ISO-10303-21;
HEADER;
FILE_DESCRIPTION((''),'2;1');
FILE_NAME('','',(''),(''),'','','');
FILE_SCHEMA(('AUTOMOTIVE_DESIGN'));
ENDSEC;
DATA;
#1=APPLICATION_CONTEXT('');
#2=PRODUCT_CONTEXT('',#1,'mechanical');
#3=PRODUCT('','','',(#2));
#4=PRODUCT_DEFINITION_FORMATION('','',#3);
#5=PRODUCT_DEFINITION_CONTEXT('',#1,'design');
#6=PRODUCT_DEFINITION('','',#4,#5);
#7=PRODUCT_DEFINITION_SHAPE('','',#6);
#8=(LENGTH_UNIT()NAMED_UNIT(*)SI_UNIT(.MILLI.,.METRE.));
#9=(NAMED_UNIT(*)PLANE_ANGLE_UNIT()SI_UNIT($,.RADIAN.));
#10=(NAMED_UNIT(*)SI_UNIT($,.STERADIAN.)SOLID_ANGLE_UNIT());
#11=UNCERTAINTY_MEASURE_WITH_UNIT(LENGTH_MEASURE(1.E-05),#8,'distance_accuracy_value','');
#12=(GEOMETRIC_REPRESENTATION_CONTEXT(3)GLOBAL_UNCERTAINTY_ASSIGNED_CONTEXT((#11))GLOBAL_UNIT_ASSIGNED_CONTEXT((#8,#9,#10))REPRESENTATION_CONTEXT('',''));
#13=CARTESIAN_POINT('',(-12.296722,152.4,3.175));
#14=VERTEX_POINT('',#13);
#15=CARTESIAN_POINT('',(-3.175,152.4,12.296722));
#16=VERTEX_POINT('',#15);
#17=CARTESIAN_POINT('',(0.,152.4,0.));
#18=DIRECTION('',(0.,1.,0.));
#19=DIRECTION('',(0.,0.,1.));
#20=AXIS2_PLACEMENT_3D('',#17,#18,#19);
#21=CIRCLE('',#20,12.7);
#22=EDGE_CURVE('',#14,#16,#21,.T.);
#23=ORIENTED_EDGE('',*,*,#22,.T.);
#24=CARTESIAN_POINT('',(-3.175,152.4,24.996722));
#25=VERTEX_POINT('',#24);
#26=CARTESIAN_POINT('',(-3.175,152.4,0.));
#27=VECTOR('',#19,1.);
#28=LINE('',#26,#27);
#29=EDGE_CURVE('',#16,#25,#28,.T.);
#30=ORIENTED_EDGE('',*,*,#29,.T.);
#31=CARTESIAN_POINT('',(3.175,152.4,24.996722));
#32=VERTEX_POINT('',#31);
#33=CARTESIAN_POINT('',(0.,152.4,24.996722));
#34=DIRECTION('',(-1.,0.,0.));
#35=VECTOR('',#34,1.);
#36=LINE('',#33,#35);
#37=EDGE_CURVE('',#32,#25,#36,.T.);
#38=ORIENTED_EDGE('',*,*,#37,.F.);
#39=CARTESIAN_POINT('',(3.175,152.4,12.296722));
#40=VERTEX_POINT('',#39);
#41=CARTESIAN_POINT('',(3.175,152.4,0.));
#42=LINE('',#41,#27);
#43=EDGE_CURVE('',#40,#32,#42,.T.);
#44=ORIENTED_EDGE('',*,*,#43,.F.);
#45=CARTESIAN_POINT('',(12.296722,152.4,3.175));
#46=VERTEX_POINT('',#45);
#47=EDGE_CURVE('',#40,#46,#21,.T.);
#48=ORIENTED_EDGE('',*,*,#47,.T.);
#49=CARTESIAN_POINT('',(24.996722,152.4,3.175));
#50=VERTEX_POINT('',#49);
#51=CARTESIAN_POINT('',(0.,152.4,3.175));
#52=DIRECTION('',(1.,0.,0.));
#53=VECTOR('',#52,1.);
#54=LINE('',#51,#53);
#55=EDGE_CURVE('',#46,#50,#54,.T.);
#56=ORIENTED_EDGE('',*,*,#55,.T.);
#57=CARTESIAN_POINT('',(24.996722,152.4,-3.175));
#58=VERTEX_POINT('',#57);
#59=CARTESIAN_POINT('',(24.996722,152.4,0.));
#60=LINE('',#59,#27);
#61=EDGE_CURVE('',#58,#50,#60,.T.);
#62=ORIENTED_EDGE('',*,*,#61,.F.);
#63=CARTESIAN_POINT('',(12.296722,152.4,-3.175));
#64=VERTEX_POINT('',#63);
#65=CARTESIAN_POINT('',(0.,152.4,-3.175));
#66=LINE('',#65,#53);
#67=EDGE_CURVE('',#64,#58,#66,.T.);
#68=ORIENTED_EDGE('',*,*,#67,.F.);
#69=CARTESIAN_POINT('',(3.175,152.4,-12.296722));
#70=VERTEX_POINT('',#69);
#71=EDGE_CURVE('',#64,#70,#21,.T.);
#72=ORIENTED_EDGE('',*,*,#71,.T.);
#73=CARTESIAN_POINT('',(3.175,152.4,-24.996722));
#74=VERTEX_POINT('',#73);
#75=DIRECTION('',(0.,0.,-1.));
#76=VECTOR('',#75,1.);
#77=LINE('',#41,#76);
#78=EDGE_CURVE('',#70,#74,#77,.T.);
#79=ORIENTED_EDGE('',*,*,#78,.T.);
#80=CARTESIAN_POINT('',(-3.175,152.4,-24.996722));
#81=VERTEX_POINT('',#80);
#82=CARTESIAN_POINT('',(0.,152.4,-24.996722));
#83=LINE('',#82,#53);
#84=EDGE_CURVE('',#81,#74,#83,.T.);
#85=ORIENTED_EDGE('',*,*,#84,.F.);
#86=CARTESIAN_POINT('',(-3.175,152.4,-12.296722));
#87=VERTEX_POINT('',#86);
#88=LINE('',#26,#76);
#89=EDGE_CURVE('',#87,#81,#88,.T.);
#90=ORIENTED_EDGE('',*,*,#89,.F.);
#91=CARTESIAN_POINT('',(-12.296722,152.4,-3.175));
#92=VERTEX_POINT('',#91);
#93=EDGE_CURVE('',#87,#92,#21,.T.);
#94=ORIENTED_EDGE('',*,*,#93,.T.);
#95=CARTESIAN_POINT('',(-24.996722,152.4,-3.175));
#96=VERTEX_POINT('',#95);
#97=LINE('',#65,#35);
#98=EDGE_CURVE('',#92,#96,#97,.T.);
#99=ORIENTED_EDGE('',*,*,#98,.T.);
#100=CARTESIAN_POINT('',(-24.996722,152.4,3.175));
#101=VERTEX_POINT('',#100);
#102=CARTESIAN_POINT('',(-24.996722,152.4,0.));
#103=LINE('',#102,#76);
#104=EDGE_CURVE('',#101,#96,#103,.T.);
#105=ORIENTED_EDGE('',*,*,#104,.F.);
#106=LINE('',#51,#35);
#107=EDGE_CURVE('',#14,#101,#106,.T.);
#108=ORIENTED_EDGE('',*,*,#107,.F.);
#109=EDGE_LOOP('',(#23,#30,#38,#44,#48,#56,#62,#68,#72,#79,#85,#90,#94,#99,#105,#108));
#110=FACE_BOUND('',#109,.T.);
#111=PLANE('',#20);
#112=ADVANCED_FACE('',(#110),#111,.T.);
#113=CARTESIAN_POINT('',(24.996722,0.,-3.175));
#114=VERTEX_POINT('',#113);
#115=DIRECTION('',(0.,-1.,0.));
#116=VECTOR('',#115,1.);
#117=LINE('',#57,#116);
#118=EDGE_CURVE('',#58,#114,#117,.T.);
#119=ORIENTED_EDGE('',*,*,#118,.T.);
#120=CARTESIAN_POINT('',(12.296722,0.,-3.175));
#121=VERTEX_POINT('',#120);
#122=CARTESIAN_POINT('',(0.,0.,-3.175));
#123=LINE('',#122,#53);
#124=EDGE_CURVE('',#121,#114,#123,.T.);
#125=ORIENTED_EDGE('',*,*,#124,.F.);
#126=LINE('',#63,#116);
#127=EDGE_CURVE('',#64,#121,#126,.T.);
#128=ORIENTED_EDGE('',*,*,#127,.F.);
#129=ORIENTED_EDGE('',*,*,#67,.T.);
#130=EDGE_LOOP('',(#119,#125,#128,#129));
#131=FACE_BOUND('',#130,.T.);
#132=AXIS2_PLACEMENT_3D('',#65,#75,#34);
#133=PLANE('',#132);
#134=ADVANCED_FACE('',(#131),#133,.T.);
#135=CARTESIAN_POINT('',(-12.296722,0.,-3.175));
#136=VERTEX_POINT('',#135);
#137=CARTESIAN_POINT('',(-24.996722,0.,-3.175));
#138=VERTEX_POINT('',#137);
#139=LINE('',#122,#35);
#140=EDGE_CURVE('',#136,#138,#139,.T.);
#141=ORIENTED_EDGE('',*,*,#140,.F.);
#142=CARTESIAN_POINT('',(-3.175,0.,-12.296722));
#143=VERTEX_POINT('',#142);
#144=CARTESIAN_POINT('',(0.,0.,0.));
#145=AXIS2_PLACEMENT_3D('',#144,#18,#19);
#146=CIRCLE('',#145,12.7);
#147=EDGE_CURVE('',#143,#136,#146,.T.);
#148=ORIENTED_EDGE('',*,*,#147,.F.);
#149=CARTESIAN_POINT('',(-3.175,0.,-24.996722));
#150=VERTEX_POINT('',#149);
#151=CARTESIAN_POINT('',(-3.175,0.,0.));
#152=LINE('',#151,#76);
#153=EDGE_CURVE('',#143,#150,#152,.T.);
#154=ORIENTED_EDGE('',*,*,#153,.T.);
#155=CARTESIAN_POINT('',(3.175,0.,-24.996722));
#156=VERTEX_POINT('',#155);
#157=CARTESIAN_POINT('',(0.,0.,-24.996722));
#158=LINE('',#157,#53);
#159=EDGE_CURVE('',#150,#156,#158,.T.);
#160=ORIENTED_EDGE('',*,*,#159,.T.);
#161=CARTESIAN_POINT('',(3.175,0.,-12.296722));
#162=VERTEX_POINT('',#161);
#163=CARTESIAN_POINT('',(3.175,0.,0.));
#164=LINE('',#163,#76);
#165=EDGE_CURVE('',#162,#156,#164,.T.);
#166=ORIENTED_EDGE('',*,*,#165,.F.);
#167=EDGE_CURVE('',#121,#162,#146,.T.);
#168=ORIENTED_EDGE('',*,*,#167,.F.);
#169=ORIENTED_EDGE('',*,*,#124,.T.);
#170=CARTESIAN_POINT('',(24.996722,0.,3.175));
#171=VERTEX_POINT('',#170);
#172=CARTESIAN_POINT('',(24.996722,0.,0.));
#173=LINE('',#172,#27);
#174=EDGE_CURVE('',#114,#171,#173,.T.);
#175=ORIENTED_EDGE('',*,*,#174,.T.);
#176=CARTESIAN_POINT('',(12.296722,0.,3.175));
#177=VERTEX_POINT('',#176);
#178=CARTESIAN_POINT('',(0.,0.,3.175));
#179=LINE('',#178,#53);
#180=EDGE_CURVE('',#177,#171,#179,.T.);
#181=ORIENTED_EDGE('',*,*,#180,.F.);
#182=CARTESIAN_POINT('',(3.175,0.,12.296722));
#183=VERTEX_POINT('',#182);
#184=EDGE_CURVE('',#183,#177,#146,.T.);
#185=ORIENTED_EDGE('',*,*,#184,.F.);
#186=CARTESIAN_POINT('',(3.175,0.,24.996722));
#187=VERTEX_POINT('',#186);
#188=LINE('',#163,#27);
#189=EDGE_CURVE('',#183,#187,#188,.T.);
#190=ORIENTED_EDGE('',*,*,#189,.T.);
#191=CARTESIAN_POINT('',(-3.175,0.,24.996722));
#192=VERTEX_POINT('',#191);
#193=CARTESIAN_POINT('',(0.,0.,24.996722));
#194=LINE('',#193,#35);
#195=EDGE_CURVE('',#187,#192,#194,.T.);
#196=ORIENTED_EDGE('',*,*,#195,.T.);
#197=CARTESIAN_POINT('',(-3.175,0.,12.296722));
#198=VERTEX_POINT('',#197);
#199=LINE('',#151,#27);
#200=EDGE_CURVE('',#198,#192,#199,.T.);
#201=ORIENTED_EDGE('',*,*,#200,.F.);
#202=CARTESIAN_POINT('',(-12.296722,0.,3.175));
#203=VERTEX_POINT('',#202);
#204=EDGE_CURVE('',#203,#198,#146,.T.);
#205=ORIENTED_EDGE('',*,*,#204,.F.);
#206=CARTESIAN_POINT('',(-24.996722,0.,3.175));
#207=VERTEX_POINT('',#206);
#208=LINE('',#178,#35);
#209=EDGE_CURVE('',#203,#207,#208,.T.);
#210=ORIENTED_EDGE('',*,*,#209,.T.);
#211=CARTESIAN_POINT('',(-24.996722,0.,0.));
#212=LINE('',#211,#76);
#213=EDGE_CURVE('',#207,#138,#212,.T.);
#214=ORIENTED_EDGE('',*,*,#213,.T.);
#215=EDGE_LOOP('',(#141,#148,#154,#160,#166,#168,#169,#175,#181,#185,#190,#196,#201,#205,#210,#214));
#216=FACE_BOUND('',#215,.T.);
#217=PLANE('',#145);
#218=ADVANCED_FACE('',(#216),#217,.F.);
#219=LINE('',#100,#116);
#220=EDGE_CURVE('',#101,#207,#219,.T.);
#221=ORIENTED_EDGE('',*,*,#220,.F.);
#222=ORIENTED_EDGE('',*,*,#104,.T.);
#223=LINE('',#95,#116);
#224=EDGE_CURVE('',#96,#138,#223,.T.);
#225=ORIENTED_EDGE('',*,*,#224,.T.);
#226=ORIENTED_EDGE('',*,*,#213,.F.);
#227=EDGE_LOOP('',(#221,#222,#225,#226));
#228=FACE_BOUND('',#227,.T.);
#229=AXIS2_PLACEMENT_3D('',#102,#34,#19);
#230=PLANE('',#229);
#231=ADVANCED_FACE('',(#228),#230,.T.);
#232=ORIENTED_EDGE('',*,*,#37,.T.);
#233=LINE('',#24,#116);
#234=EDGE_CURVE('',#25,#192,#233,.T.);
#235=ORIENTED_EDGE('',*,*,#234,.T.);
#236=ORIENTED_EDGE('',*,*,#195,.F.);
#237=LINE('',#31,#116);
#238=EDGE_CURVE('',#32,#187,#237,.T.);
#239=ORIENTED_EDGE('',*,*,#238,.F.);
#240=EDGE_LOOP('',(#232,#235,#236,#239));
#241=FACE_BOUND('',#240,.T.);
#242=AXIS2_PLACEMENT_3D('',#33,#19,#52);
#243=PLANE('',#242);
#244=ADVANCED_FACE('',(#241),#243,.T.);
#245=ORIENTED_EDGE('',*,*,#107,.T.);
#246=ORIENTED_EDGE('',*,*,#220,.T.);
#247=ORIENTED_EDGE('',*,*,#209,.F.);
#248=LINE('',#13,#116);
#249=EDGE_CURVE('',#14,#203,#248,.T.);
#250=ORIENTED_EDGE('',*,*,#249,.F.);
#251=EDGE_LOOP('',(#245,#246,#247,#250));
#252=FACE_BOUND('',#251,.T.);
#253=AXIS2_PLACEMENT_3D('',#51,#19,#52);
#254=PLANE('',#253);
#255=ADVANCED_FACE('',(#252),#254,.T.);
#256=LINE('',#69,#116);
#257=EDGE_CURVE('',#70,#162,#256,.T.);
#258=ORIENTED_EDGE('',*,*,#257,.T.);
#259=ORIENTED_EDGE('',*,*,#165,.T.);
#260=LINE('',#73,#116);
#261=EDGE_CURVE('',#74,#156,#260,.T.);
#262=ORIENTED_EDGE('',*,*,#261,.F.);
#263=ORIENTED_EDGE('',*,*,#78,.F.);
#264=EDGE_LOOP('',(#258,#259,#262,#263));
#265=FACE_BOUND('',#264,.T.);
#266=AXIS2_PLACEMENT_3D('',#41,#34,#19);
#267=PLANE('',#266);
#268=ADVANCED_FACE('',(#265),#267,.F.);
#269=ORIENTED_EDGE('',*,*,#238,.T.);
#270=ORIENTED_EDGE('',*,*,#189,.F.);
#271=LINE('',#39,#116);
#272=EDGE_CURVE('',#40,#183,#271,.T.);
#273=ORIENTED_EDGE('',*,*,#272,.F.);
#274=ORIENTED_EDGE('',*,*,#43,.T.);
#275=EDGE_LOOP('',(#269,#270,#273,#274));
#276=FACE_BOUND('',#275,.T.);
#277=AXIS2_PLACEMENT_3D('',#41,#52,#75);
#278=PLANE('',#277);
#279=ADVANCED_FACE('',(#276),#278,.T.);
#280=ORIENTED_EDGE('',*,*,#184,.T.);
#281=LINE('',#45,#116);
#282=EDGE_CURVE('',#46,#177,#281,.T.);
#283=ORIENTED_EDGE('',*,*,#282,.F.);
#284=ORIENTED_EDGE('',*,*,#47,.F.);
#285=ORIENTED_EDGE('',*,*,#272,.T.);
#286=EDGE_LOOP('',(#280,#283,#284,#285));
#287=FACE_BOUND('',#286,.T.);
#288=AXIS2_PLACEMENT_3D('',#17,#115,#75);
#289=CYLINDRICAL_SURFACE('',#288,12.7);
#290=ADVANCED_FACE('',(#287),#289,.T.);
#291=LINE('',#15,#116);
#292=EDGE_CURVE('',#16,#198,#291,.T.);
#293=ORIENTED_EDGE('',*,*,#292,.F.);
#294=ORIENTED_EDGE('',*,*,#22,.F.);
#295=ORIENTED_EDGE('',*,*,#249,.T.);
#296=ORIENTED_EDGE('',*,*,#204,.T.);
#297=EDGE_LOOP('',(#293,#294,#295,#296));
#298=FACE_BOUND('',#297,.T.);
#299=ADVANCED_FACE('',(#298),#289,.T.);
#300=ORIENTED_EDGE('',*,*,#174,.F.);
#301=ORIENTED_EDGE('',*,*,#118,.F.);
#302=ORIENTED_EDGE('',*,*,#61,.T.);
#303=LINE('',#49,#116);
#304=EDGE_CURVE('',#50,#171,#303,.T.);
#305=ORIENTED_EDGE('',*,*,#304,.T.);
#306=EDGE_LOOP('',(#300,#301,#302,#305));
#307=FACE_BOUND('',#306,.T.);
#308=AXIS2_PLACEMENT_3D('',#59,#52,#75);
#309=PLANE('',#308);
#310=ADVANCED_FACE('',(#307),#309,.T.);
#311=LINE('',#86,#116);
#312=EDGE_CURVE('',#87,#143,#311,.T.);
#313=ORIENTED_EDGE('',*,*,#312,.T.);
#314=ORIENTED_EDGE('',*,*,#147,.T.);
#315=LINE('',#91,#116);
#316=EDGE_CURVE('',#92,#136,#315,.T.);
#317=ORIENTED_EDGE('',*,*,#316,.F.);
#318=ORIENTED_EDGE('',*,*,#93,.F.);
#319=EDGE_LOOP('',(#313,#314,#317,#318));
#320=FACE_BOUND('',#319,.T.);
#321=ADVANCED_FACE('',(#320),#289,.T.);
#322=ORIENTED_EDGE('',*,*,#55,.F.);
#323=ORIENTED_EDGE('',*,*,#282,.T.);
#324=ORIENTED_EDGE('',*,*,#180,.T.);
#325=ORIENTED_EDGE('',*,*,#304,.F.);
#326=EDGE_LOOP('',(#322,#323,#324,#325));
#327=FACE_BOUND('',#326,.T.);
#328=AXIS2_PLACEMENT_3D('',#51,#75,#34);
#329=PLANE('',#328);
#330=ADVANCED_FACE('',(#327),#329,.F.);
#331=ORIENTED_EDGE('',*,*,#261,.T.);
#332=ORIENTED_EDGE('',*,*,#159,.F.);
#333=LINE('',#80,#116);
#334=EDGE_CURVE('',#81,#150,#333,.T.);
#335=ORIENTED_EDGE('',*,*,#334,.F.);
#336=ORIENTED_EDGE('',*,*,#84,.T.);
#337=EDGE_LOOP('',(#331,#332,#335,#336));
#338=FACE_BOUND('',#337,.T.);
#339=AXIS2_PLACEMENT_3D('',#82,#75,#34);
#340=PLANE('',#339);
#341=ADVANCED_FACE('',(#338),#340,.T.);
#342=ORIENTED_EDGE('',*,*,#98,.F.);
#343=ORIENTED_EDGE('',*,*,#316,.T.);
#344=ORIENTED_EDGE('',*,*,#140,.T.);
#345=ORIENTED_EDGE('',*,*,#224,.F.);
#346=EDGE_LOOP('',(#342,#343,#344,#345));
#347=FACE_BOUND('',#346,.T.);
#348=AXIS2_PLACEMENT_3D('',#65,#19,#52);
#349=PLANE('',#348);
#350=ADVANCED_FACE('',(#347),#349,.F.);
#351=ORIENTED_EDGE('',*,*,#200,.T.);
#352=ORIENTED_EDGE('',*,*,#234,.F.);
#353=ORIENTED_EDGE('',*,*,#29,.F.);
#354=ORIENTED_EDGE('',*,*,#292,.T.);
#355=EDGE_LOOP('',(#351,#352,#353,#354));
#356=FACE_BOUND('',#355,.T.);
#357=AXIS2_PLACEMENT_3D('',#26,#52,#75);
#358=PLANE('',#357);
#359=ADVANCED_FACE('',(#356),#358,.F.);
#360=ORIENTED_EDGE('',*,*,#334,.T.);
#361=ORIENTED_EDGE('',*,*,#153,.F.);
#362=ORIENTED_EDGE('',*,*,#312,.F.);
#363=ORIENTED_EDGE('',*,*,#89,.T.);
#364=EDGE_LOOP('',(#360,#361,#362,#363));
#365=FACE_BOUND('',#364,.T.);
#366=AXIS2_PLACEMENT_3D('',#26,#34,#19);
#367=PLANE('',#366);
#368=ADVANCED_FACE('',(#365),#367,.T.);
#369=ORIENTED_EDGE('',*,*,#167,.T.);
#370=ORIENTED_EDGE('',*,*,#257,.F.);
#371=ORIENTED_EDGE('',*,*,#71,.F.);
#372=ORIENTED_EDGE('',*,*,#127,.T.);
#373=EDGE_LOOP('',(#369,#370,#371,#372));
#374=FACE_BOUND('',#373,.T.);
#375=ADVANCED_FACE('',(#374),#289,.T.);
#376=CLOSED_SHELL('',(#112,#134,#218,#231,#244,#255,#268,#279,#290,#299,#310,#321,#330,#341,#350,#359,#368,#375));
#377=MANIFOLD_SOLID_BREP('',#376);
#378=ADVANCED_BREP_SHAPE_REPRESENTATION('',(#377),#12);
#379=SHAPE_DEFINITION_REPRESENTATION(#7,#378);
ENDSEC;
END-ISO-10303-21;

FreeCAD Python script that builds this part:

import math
import FreeCAD as App
import Part
import Sketcher
Q = App.Units.Quantity

doc = App.newDocument("Part")
body = doc.addObject("PartDesign::Body", "Body")

sketch1 = body.newObject("Sketcher::SketchObject", "Sketch")
sketch1.AttachmentSupport = (doc.getObject("XZ_Plane"), [""])
sketch1.MapMode = "FlatFace"
sketch1.addGeometry(Part.ArcOfCircle(Part.Circle(App.Vector(0, 0, 0), App.Vector(0, 0, 1), 13), math.radians(14), math.radians(76)), False)
sketch1.addGeometry(Part.LineSegment(App.Vector(12, 3, 0), App.Vector(25, 3, 0)), False)
sketch1.addGeometry(Part.LineSegment(App.Vector(25, 3, 0), App.Vector(25, -3, 0)), False)
sketch1.addGeometry(Part.LineSegment(App.Vector(25, -3, 0), App.Vector(12, -3, 0)), False)
sketch1.addGeometry(Part.ArcOfCircle(Part.Circle(App.Vector(0, 0, 0), App.Vector(0, 0, 1), 13), math.radians(-76), math.radians(-14)), False)
sketch1.addGeometry(Part.LineSegment(App.Vector(3, -12, 0), App.Vector(3, -25, 0)), False)
sketch1.addGeometry(Part.LineSegment(App.Vector(3, -25, 0), App.Vector(-3, -25, 0)), False)
sketch1.addGeometry(Part.LineSegment(App.Vector(-3, -25, 0), App.Vector(-3, -12, 0)), False)
sketch1.addGeometry(Part.ArcOfCircle(Part.Circle(App.Vector(0, 0, 0), App.Vector(0, 0, 1), 13), math.radians(-166), math.radians(-104)), False)
sketch1.addGeometry(Part.LineSegment(App.Vector(-12, -3, 0), App.Vector(-25, -3, 0)), False)
sketch1.addGeometry(Part.LineSegment(App.Vector(-25, -3, 0), App.Vector(-25, 3, 0)), False)
sketch1.addGeometry(Part.LineSegment(App.Vector(-25, 3, 0), App.Vector(-12, 3, 0)), False)
sketch1.addGeometry(Part.ArcOfCircle(Part.Circle(App.Vector(0, 0, 0), App.Vector(0, 0, 1), 13), math.radians(104), math.radians(166)), False)
sketch1.addGeometry(Part.LineSegment(App.Vector(-3, 12, 0), App.Vector(-3, 25, 0)), False)
sketch1.addGeometry(Part.LineSegment(App.Vector(-3, 25, 0), App.Vector(3, 25, 0)), False)
sketch1.addGeometry(Part.LineSegment(App.Vector(3, 25, 0), App.Vector(3, 12, 0)), False)
sketch1.addConstraint(Sketcher.Constraint("Coincident", 0, 1, 1, 1))
sketch1.addConstraint(Sketcher.Constraint("Coincident", 1, 2, 2, 1))
sketch1.addConstraint(Sketcher.Constraint("Coincident", 2, 2, 3, 1))
sketch1.addConstraint(Sketcher.Constraint("Coincident", 3, 2, 4, 2))
sketch1.addConstraint(Sketcher.Constraint("Coincident", 4, 1, 5, 1))
sketch1.addConstraint(Sketcher.Constraint("Coincident", 5, 2, 6, 1))
sketch1.addConstraint(Sketcher.Constraint("Coincident", 6, 2, 7, 1))
sketch1.addConstraint(Sketcher.Constraint("Coincident", 7, 2, 8, 2))
sketch1.addConstraint(Sketcher.Constraint("Coincident", 8, 1, 9, 1))
sketch1.addConstraint(Sketcher.Constraint("Coincident", 9, 2, 10, 1))
sketch1.addConstraint(Sketcher.Constraint("Coincident", 10, 2, 11, 1))
sketch1.addConstraint(Sketcher.Constraint("Coincident", 11, 2, 12, 2))
sketch1.addConstraint(Sketcher.Constraint("Coincident", 12, 1, 13, 1))
sketch1.addConstraint(Sketcher.Constraint("Coincident", 13, 2, 14, 1))
sketch1.addConstraint(Sketcher.Constraint("Coincident", 14, 2, 15, 1))
sketch1.addConstraint(Sketcher.Constraint("Coincident", 15, 2, 0, 2))
sketch1.addConstraint(Sketcher.Constraint("Horizontal", 1))
sketch1.addConstraint(Sketcher.Constraint("Vertical", 2))
sketch1.addConstraint(Sketcher.Constraint("Horizontal", 3))
sketch1.addConstraint(Sketcher.Constraint("Vertical", 5))
sketch1.addConstraint(Sketcher.Constraint("Horizontal", 6))
sketch1.addConstraint(Sketcher.Constraint("Vertical", 7))
sketch1.addConstraint(Sketcher.Constraint("Horizontal", 9))
sketch1.addConstraint(Sketcher.Constraint("Vertical", 10))
sketch1.addConstraint(Sketcher.Constraint("Horizontal", 11))
sketch1.addConstraint(Sketcher.Constraint("Vertical", 13))
sketch1.addConstraint(Sketcher.Constraint("Horizontal", 14))
sketch1.addConstraint(Sketcher.Constraint("Vertical", 15))
sketch1.addConstraint(Sketcher.Constraint("Coincident", 0, 3, -1, 1))
sketch1.addConstraint(Sketcher.Constraint("Coincident", 4, 3, -1, 1))
sketch1.addConstraint(Sketcher.Constraint("Coincident", 8, 3, -1, 1))
sketch1.addConstraint(Sketcher.Constraint("Coincident", 12, 3, -1, 1))
sketch1.addConstraint(Sketcher.Constraint("Equal", 0, 4))
sketch1.addConstraint(Sketcher.Constraint("Equal", 4, 8))
sketch1.addConstraint(Sketcher.Constraint("Equal", 8, 12))
sketch1.addConstraint(Sketcher.Constraint("Symmetric", 1, 2, 9, 2, -1, 1))
sketch1.addConstraint(Sketcher.Constraint("Symmetric", 5, 2, 13, 2, -1, 1))
sketch1.addConstraint(Sketcher.Constraint("Horizontal", 4, 1, 7, 2))
sketch1.addConstraint(Sketcher.Constraint("Horizontal", 3, 2, 8, 1))
sketch1.addConstraint(Sketcher.Constraint("Horizontal", 1, 2, 10, 2))
sketch1.addConstraint(Sketcher.Constraint("Horizontal", 12, 1, 15, 2))
sketch1.addConstraint(Sketcher.Constraint("Equal", 14, 2))
sketch1.addConstraint(Sketcher.Constraint("Equal", 11, 5))
sketch1.addConstraint(Sketcher.Constraint("Radius", 0, Q("0.5 in")))
sketch1.addConstraint(Sketcher.Constraint("DistanceX", 1, 1, 1, 2, Q("0.5 in")))
sketch1.addConstraint(Sketcher.Constraint("DistanceX", 6, 2, 6, 1, Q("0.25 in")))
pad1 = body.newObject("PartDesign::Pad", "Pad")
pad1.Profile = sketch1
pad1.Length = Q("6 in")
pad1.Reversed = True

doc.recompute()
